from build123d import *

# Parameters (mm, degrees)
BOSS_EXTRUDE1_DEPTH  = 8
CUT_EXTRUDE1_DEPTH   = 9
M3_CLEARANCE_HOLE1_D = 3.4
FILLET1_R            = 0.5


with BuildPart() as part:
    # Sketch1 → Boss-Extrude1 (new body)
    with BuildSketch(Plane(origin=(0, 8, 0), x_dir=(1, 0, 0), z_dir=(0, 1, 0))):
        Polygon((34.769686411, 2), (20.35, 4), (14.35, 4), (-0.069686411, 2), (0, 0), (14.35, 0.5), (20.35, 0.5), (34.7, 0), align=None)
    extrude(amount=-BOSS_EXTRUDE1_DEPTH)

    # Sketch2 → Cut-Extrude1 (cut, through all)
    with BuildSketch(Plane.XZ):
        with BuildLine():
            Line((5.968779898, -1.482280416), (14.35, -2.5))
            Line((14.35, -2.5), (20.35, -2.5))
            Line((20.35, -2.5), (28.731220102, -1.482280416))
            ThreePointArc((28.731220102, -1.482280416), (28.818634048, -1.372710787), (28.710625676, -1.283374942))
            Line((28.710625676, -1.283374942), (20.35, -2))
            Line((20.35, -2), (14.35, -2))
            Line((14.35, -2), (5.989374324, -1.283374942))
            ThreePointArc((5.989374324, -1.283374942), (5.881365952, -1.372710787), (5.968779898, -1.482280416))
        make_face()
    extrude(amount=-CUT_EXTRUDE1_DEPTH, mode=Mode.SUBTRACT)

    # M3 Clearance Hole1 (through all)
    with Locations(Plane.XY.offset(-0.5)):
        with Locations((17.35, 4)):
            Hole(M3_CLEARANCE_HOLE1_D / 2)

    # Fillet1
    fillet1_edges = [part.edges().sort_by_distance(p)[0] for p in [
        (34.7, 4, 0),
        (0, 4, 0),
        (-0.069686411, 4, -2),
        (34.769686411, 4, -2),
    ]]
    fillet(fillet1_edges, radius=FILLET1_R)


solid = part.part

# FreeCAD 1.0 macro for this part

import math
import FreeCAD as App
import Part
import Sketcher

V = App.Vector


def edges_at(feature, points):
    """Names of the edges that pass closest to the given points."""
    edges = feature.Shape.Edges
    near = lambda p: min(range(len(edges)), key=lambda i: edges[i].distToShape(Part.Vertex(*p))[0])
    return sorted({f"Edge{near(p) + 1}" for p in points})


def add_polygon(sketch, points):
    """Adds a closed chain of lines whose ends are joined by coincident constraints."""
    first, n = sketch.GeometryCount, len(points)
    for a, b in zip(points, points[1:] + points[:1]):
        sketch.addGeometry(Part.LineSegment(App.Vector(*a, 0), App.Vector(*b, 0)), False)
    for i in range(n):
        sketch.addConstraint(Sketcher.Constraint("Coincident", first + i, 2, first + (i + 1) % n, 1))

doc = App.newDocument("Part")
params = doc.addObject("Spreadsheet::Sheet", "Params")
for row, (alias, value) in enumerate([
    ("sketch1_width", "6 mm"),
    ("pad1_length", "8 mm"),
    ("sketch2_radius", "0.1 mm"),
    ("sketch2_width", "6 mm"),
    ("sketch3_diameter", "3.4 mm"),
    ("hole_diameter", "3.4 mm"),
    ("fillet_radius", "0.5 mm"),
], start=1):
    params.set(f"A{row}", alias)
    params.set(f"B{row}", "=" + value)
    params.setAlias(f"B{row}", alias)

body = doc.addObject("PartDesign::Body", "Body")

sketch1 = doc.addObject("Sketcher::SketchObject", "Sketch")
body.addObject(sketch1)
sketch1.AttachmentSupport = (doc.XZ_Plane, [""])
sketch1.MapMode = "FlatFace"
sketch1.AttachmentOffset = App.Placement(V(0, 0, -8), App.Rotation())
add_polygon(sketch1, [(34.8, -2), (20.4, -4), (14.3, -4), (-0.1, -2), (0, 0), (14.3, -0.5), (20.4, -0.5), (34.7, 0)])
sketch1.addConstraint(Sketcher.Constraint("Horizontal", 1))
sketch1.addConstraint(Sketcher.Constraint("Horizontal", 5))
sketch1.addConstraint(Sketcher.Constraint("Coincident", 3, 2, -1, 1))
sketch1.addConstraint(Sketcher.Constraint("PointOnObject", 6, 2, -1))
sketch1.addConstraint(Sketcher.Constraint("Perpendicular", 3, 4))
sketch1.addConstraint(Sketcher.Constraint("Perpendicular", 6, 7))
sketch1.addConstraint(Sketcher.Constraint("Horizontal", 2, 2, 7, 2))
sketch1.addConstraint(Sketcher.Constraint("Vertical", 1, 2, 4, 2))
sketch1.addConstraint(Sketcher.Constraint("Vertical", 0, 2, 5, 2))
sketch1.addConstraint(Sketcher.Constraint("Equal", 0, 2))
sketch1.addConstraint(Sketcher.Constraint("DistanceX", 1, 2, 1, 1, 6.0))
sketch1.addConstraint(Sketcher.Constraint("DistanceY", 0, 2, -1, 1, 4.0))
sketch1.addConstraint(Sketcher.Constraint("DistanceY", 2, 2, -1, 1, 2.0))
sketch1.addConstraint(Sketcher.Constraint("DistanceY", 4, 2, -1, 1, 0.5))
sketch1.addConstraint(Sketcher.Constraint("DistanceX", -1, 1, 6, 2, 34.7))
sketch1.setExpression("Constraints[18]", "Params.sketch1_width")
pad1 = doc.addObject("PartDesign::Pad", "Pad")
body.addObject(pad1)
pad1.Profile = sketch1
pad1.setExpression("Length", "Params.pad1_length")

sketch2 = doc.addObject("Sketcher::SketchObject", "Sketch001")
body.addObject(sketch2)
sketch2.AttachmentSupport = (doc.XZ_Plane, [""])
sketch2.MapMode = "FlatFace"
sketch2.addGeometry(Part.LineSegment(V(5.97, -1.48, 0), V(14.35, -2.5, 0)), False)
sketch2.addGeometry(Part.LineSegment(V(14.35, -2.5, 0), V(20.35, -2.5, 0)), False)
sketch2.addGeometry(Part.LineSegment(V(20.35, -2.5, 0), V(28.73, -1.48, 0)), False)
sketch2.addGeometry(Part.ArcOfCircle(Part.Circle(V(28.72, -1.38, 0), V(0, 0, 1), 0.1), math.radians(-83), math.radians(95)), False)
sketch2.addGeometry(Part.LineSegment(V(28.71, -1.28, 0), V(20.35, -2, 0)), False)
sketch2.addGeometry(Part.LineSegment(V(20.35, -2, 0), V(14.35, -2, 0)), False)
sketch2.addGeometry(Part.LineSegment(V(14.35, -2, 0), V(5.99, -1.28, 0)), False)
sketch2.addGeometry(Part.ArcOfCircle(Part.Circle(V(5.98, -1.38, 0), V(0, 0, 1), 0.1), math.radians(85), math.radians(263)), False)
sketch2.addConstraint(Sketcher.Constraint("Coincident", 0, 2, 1, 1))
sketch2.addConstraint(Sketcher.Constraint("Coincident", 1, 2, 2, 1))
sketch2.addConstraint(Sketcher.Constraint("Tangent", 2, 2, 3, 1))
sketch2.addConstraint(Sketcher.Constraint("Tangent", 3, 2, 4, 1))
sketch2.addConstraint(Sketcher.Constraint("Coincident", 4, 2, 5, 1))
sketch2.addConstraint(Sketcher.Constraint("Coincident", 5, 2, 6, 1))
sketch2.addConstraint(Sketcher.Constraint("Tangent", 6, 2, 7, 1))
sketch2.addConstraint(Sketcher.Constraint("Tangent", 7, 2, 0, 1))
sketch2.addConstraint(Sketcher.Constraint("Horizontal", 1))
sketch2.addConstraint(Sketcher.Constraint("Horizontal", 5))
sketch2.addConstraint(Sketcher.Constraint("Equal", 3, 7))
sketch2.addConstraint(Sketcher.Constraint("Horizontal", 3, 3, 7, 3))
sketch2.addConstraint(Sketcher.Constraint("Vertical", 1, 2, 4, 2))
sketch2.addConstraint(Sketcher.Constraint("Vertical", 0, 2, 5, 2))
sketch2.addConstraint(Sketcher.Constraint("Equal", 0, 2))
sketch2.addConstraint(Sketcher.Constraint("Radius", 3, 0.1))
sketch2.addConstraint(Sketcher.Constraint("DistanceX", 1, 1, 1, 2, 6.0))
sketch2.addConstraint(Sketcher.Constraint("DistanceY", 4, 2, -1, 1, 2.0))
sketch2.addConstraint(Sketcher.Constraint("DistanceY", 0, 2, -1, 1, 2.5))
sketch2.addConstraint(Sketcher.Constraint("DistanceX", -1, 1, 0, 2, 14.35))
sketch2.addConstraint(Sketcher.Constraint("Distance", 4, 8.391282))
sketch2.addConstraint(Sketcher.Constraint("DistanceY", 3, 3, -1, 1, 1.38301))
sketch2.setExpression("Constraints[15]", "Params.sketch2_radius")
sketch2.setExpression("Constraints[16]", "Params.sketch2_width")
pocket1 = doc.addObject("PartDesign::Pocket", "Pocket")
body.addObject(pocket1)
pocket1.Profile = sketch2
pocket1.Type = "ThroughAll"

sketch3 = doc.addObject("Sketcher::SketchObject", "Sketch002")
body.addObject(sketch3)
sketch3.AttachmentSupport = (doc.XY_Plane, [""])
sketch3.MapMode = "FlatFace"
sketch3.AttachmentOffset = App.Placement(V(0, 0, -0.5), App.Rotation())
sketch3.addGeometry(Part.Circle(V(17.4, 4, 0), V(0, 0, 1), 1.7), False)
sketch3.addConstraint(Sketcher.Constraint("Diameter", 0, 3.4))
sketch3.addConstraint(Sketcher.Constraint("DistanceY", -1, 1, 0, 3, 4.0))
sketch3.addConstraint(Sketcher.Constraint("DistanceX", -1, 1, 0, 3, 17.35))
sketch3.setExpression("Constraints[0]", "Params.sketch3_diameter")
doc.recompute()
hole = doc.addObject("PartDesign::Hole", "Hole")
body.addObject(hole)
hole.Profile = sketch3
hole.ThreadType = "None"
hole.setExpression("Diameter", "Params.hole_diameter")
hole.DepthType = "ThroughAll"
doc.recompute()

fillet = doc.addObject("PartDesign::Fillet", "Fillet")
body.addObject(fillet)
fillet.Base = (hole, edges_at(hole, [
    (34.7, 4, 0),
    (0, 4, 0),
    (-0.07, 4, -2),
    (34.77, 4, -2),
]))
fillet.setExpression("Radius", "Params.fillet_radius")

doc.recompute()
